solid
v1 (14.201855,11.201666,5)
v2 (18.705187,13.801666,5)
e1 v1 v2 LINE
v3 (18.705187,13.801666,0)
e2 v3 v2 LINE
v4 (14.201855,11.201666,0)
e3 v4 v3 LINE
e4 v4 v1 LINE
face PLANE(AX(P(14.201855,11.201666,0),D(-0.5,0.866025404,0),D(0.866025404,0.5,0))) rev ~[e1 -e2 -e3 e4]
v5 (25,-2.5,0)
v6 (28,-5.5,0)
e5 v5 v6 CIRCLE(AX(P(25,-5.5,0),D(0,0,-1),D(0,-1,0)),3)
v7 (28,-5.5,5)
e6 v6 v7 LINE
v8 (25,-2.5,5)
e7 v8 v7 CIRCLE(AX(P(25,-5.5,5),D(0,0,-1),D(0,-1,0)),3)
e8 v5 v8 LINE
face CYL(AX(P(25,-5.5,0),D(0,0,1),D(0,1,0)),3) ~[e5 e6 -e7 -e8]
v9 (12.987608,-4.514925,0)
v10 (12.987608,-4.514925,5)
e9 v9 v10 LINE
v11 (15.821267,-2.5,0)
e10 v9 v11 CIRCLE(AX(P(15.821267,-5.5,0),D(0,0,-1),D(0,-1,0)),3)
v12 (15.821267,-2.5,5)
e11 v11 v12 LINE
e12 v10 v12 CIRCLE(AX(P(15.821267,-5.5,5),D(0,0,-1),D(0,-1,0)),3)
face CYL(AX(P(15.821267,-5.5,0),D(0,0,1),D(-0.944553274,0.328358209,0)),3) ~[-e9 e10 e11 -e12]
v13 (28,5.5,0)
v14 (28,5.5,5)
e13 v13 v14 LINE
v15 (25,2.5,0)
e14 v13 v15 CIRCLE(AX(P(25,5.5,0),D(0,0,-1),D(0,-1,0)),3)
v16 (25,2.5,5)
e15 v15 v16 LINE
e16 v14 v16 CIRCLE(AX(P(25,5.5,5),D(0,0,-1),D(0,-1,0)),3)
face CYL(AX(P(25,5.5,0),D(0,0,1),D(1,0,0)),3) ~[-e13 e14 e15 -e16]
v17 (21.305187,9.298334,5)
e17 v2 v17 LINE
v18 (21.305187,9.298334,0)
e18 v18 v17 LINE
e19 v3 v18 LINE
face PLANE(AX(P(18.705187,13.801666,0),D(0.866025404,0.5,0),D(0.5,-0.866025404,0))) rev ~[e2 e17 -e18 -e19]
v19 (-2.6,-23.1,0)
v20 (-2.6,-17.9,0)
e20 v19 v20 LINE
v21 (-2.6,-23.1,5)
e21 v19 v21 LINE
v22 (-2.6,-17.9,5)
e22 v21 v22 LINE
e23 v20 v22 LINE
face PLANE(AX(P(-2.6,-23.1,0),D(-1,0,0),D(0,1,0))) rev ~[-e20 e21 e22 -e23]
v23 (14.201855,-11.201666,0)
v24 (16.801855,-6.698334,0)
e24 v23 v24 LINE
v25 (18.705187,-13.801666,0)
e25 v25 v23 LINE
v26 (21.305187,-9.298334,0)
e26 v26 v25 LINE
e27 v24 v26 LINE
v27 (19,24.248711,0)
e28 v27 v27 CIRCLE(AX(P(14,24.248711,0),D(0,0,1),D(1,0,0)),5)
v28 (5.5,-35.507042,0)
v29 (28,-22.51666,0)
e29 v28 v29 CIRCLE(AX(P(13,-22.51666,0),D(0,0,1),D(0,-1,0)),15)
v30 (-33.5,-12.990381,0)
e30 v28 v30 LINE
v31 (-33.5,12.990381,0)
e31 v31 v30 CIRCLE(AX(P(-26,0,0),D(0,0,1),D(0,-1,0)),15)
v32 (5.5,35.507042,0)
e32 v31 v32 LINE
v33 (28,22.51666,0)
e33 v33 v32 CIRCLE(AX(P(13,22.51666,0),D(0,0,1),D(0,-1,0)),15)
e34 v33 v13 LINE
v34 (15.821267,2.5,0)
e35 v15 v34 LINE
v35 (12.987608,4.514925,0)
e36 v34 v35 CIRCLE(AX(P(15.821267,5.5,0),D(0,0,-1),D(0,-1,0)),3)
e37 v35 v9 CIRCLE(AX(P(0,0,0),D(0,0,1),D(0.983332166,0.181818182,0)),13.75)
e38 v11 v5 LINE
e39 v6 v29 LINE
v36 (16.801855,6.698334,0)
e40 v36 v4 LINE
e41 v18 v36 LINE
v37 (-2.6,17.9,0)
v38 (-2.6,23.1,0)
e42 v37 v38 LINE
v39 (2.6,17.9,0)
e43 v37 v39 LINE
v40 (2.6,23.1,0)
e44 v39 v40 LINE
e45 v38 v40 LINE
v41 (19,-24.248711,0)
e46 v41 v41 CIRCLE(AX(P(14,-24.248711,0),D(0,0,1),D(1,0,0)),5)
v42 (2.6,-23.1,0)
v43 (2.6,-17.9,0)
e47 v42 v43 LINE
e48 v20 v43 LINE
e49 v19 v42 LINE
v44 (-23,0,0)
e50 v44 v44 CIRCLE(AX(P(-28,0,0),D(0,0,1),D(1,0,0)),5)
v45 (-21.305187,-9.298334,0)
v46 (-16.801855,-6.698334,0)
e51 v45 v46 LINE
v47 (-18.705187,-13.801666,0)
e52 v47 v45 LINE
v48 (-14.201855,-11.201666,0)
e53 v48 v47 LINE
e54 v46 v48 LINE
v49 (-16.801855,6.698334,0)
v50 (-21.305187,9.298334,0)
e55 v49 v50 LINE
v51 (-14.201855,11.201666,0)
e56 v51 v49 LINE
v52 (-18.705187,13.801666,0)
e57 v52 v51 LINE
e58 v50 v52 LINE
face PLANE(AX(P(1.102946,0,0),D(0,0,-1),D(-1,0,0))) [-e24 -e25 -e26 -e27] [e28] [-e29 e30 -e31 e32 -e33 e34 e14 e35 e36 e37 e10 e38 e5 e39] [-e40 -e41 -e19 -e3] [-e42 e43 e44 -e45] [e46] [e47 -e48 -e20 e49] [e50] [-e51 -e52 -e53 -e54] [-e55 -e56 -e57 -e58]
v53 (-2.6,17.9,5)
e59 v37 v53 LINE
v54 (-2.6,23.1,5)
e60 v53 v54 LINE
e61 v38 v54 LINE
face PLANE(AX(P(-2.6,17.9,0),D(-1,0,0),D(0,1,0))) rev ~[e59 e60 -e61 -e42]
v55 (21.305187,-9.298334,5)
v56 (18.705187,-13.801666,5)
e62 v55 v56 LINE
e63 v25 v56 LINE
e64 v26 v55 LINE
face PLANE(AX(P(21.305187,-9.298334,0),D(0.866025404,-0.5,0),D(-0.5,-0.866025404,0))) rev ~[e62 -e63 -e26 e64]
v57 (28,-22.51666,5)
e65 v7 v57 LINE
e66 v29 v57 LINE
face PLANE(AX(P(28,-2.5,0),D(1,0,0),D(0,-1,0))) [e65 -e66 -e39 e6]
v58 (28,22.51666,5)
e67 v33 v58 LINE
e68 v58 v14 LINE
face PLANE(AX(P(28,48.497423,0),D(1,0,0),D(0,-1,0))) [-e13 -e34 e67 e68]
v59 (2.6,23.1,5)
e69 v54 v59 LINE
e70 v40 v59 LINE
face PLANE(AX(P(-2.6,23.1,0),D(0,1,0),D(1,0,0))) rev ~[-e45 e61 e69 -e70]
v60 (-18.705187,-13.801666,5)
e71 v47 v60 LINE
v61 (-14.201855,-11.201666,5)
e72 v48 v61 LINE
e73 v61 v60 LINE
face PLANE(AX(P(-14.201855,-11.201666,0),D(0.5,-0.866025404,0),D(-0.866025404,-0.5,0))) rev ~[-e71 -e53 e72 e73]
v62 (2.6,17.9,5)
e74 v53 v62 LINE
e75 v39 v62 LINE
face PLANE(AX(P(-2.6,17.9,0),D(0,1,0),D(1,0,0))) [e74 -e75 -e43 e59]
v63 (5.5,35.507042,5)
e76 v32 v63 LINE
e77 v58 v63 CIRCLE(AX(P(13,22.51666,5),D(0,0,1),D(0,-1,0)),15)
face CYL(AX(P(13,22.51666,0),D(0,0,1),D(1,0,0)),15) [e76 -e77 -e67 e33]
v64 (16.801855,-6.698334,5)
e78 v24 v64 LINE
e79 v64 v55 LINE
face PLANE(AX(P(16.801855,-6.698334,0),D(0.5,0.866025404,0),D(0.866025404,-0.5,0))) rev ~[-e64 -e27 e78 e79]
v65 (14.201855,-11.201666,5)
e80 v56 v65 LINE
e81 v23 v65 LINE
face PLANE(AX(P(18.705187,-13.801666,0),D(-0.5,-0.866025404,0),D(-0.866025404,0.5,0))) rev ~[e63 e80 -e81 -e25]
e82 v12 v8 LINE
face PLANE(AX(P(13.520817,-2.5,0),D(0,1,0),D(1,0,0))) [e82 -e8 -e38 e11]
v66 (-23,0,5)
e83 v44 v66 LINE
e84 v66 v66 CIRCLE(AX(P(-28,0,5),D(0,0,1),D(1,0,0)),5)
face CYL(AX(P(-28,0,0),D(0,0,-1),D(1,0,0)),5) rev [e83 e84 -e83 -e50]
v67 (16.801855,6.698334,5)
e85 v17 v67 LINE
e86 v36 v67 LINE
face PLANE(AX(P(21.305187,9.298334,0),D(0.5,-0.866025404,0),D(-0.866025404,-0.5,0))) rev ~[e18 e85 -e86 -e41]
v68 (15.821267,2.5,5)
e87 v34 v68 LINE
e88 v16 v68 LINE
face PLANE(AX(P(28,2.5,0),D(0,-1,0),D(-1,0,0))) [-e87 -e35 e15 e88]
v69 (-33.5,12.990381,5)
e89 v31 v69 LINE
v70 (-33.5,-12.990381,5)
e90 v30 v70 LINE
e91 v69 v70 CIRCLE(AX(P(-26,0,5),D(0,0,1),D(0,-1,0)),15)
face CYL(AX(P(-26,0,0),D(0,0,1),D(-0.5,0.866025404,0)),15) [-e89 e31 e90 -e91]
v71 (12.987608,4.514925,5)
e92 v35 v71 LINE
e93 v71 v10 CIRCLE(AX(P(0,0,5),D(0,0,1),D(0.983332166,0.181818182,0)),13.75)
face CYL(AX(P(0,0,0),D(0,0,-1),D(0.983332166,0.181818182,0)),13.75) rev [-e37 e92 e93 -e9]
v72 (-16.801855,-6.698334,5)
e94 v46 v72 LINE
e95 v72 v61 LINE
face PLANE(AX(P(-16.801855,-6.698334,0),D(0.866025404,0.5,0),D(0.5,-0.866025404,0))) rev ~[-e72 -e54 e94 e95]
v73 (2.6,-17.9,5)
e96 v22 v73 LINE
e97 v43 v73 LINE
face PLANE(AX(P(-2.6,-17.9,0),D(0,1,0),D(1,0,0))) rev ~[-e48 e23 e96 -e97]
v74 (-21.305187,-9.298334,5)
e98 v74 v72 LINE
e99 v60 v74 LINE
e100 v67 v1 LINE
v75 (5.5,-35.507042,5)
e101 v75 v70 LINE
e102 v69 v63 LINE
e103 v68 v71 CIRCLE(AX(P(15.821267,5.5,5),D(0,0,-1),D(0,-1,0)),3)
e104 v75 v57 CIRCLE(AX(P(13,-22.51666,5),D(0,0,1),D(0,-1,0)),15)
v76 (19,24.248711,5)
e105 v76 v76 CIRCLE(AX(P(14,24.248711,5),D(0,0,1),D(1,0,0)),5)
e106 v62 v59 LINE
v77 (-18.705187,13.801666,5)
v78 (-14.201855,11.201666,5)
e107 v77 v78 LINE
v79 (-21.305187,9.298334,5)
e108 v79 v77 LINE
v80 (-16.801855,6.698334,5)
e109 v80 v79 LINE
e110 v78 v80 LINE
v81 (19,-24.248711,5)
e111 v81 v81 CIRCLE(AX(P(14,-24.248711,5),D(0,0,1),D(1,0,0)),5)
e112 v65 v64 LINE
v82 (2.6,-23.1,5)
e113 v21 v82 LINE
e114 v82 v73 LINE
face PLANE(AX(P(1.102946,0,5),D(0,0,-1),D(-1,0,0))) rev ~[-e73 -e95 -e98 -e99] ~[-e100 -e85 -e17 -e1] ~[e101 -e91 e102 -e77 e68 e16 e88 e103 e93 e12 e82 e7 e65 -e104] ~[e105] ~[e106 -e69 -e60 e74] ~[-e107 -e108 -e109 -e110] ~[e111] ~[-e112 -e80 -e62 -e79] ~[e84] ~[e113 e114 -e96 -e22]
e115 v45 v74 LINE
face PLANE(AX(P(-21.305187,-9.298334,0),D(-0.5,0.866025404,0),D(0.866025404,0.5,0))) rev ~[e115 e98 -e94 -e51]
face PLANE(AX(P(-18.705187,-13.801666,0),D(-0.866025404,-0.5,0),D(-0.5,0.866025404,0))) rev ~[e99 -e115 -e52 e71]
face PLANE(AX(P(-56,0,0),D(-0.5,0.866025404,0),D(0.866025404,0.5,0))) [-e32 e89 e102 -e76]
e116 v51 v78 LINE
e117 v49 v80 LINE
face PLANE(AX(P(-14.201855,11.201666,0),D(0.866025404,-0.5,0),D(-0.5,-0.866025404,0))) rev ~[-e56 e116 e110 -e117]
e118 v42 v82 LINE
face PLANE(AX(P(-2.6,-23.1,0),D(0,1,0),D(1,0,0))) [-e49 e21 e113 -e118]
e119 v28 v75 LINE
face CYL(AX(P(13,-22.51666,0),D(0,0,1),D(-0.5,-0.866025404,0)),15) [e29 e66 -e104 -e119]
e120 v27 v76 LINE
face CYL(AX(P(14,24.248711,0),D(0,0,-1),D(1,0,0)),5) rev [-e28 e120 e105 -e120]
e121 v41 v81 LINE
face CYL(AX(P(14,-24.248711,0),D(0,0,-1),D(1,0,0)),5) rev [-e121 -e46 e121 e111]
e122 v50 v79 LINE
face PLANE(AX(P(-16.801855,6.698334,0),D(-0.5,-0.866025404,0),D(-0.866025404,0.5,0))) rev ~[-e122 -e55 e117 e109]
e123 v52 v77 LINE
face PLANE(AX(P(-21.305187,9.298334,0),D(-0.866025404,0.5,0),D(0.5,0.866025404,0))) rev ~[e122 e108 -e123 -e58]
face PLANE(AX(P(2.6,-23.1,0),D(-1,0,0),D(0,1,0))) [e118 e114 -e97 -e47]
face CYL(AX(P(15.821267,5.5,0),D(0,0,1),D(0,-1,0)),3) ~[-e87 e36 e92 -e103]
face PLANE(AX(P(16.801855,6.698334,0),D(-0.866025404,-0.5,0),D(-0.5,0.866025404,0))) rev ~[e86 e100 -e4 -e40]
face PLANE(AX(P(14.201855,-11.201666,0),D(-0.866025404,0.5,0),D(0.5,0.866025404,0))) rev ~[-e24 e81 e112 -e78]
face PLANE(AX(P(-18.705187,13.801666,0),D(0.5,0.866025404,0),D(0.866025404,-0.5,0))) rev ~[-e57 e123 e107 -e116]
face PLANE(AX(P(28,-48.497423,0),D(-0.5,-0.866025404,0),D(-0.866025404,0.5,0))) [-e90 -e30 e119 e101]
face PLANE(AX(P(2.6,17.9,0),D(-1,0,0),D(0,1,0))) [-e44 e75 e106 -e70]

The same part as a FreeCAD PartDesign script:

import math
import FreeCAD as App
import Part
import Sketcher

V = App.Vector
Q = App.Units.Quantity


def edges_at(feature, points):
    """Names of the edges that pass closest to the given points."""
    edges = feature.Shape.Edges
    near = lambda p: min(range(len(edges)), key=lambda i: edges[i].distToShape(Part.Vertex(*p))[0])
    return sorted({f"Edge{near(p) + 1}" for p in points})


def add_polygon(sketch, points):
    """Adds a closed chain of lines whose ends are joined by coincident constraints."""
    first, n = sketch.GeometryCount, len(points)
    for a, b in zip(points, points[1:] + points[:1]):
        sketch.addGeometry(Part.LineSegment(App.Vector(*a, 0), App.Vector(*b, 0)), False)
    for i in range(n):
        sketch.addConstraint(Sketcher.Constraint("Coincident", first + i, 2, first + (i + 1) % n, 1))

doc = App.newDocument("Part")
body = doc.addObject("PartDesign::Body", "Body")

sketch1 = body.newObject("Sketcher::SketchObject", "Sketch")
sketch1.AttachmentSupport = (doc.getObject("XY_Plane"), [""])
sketch1.MapMode = "FlatFace"
sketch1.addGeometry(Part.LineSegment(V(14, 2, 0), V(28, 2, 0)), False)
sketch1.addGeometry(Part.LineSegment(V(28, 2, 0), V(28, 48, 0)), False)
sketch1.addGeometry(Part.LineSegment(V(28, 48, 0), V(-56, 0, 0)), False)
sketch1.addGeometry(Part.LineSegment(V(-56, 0, 0), V(28, -48, 0)), False)
sketch1.addGeometry(Part.LineSegment(V(28, -48, 0), V(28, -2, 0)), False)
sketch1.addGeometry(Part.LineSegment(V(28, -2, 0), V(14, -2, 0)), False)
sketch1.addGeometry(Part.ArcOfCircle(Part.Circle(V(0, 0, 0), V(0, 0, 1), 14), math.radians(10), math.radians(350)), False)
sketch1.addGeometry(Part.Circle(V(14, -24, 0), V(0, 0, 1), 5), False)
add_polygon(sketch1, [(-3, -23), (-3, -18), (3, -18), (3, -23)])
add_polygon(sketch1, [(19, -14), (14, -11), (17, -7), (21, -9)])
add_polygon(sketch1, [(-21, -9), (-17, -7), (-14, -11), (-19, -14)])
add_polygon(sketch1, [(21, 9), (17, 7), (14, 11), (19, 14)])
sketch1.addGeometry(Part.Circle(V(14, 24, 0), V(0, 0, 1), 5), False)
add_polygon(sketch1, [(-3, 18), (-3, 23), (3, 23), (3, 18)])
add_polygon(sketch1, [(-19, 14), (-14, 11), (-17, 7), (-21, 9)])
sketch1.addGeometry(Part.Circle(V(-28, 0, 0), V(0, 0, 1), 5), False)
sketch1.addConstraint(Sketcher.Constraint("Coincident", 0, 2, 1, 1))
sketch1.addConstraint(Sketcher.Constraint("Coincident", 1, 2, 2, 1))
sketch1.addConstraint(Sketcher.Constraint("Coincident", 2, 2, 3, 1))
sketch1.addConstraint(Sketcher.Constraint("Coincident", 3, 2, 4, 1))
sketch1.addConstraint(Sketcher.Constraint("Coincident", 4, 2, 5, 1))
sketch1.addConstraint(Sketcher.Constraint("Coincident", 5, 2, 6, 2))
sketch1.addConstraint(Sketcher.Constraint("Coincident", 6, 1, 0, 1))
sketch1.addConstraint(Sketcher.Constraint("Horizontal", 0))
sketch1.addConstraint(Sketcher.Constraint("Vertical", 1))
sketch1.addConstraint(Sketcher.Constraint("Vertical", 4))
sketch1.addConstraint(Sketcher.Constraint("Horizontal", 5))
sketch1.addConstraint(Sketcher.Constraint("Vertical", 8))
sketch1.addConstraint(Sketcher.Constraint("Horizontal", 9))
sketch1.addConstraint(Sketcher.Constraint("Vertical", 10))
sketch1.addConstraint(Sketcher.Constraint("Horizontal", 11))
sketch1.addConstraint(Sketcher.Constraint("Vertical", 25))
sketch1.addConstraint(Sketcher.Constraint("Horizontal", 26))
sketch1.addConstraint(Sketcher.Constraint("Vertical", 27))
sketch1.addConstraint(Sketcher.Constraint("Horizontal", 28))
sketch1.addConstraint(Sketcher.Constraint("Coincident", 6, 3, -1, 1))
sketch1.addConstraint(Sketcher.Constraint("Equal", 7, 24))
sketch1.addConstraint(Sketcher.Constraint("Equal", 24, 33))
sketch1.addConstraint(Sketcher.Constraint("Symmetric", 16, 2, 20, 2, -1, 1))
sketch1.addConstraint(Sketcher.Constraint("Symmetric", 17, 2, 21, 2, -1, 1))
sketch1.addConstraint(Sketcher.Constraint("Symmetric", 18, 2, 22, 2, -1, 1))
sketch1.addConstraint(Sketcher.Constraint("Symmetric", 19, 2, 23, 2, -1, 1))
sketch1.addConstraint(Sketcher.Constraint("Symmetric", 10, 2, 25, 2, -1, 1))
sketch1.addConstraint(Sketcher.Constraint("Symmetric", 8, 2, 27, 2, -1, 1))
sketch1.addConstraint(Sketcher.Constraint("Symmetric", 12, 2, 29, 2, -1, 1))
sketch1.addConstraint(Sketcher.Constraint("Symmetric", 13, 2, 30, 2, -1, 1))
sketch1.addConstraint(Sketcher.Constraint("Symmetric", 14, 2, 31, 2, -1, 1))
sketch1.addConstraint(Sketcher.Constraint("Symmetric", 15, 2, 32, 2, -1, 1))
sketch1.addConstraint(Sketcher.Constraint("Symmetric", 13, 2, 16, 2, -2))
sketch1.addConstraint(Sketcher.Constraint("Symmetric", 12, 2, 17, 2, -2))
sketch1.addConstraint(Sketcher.Constraint("Symmetric", 15, 2, 18, 2, -2))
sketch1.addConstraint(Sketcher.Constraint("Symmetric", 14, 2, 19, 2, -2))
sketch1.addConstraint(Sketcher.Constraint("Symmetric", 7, 3, 24, 3, -1))
sketch1.addConstraint(Sketcher.Constraint("Symmetric", 1, 2, 3, 2, -1))
sketch1.addConstraint(Sketcher.Constraint("PointOnObject", 33, 3, -1))
sketch1.addConstraint(Sketcher.Constraint("PointOnObject", 2, 2, -1))
sketch1.addConstraint(Sketcher.Constraint("Parallel", 3, 12))
sketch1.addConstraint(Sketcher.Constraint("Perpendicular", 12, 13))
sketch1.addConstraint(Sketcher.Constraint("Perpendicular", 13, 14))
sketch1.addConstraint(Sketcher.Constraint("Perpendicular", 14, 15))
sketch1.addConstraint(Sketcher.Constraint("Vertical", 5, 2, 6, 1))
sketch1.addConstraint(Sketcher.Constraint("Vertical", 11, 2, 25, 2))
sketch1.addConstraint(Sketcher.Constraint("Equal", 28, 8))
sketch1.addConstraint(Sketcher.Constraint("Equal", 12, 13))
sketch1.addConstraint(Sketcher.Constraint("Diameter", 7, Q("10 mm")))
sketch1.addConstraint(Sketcher.Constraint("Angle", 2, Q("-150 deg")))
sketch1.addConstraint(Sketcher.Constraint("Radius", 6, Q("13.75 mm")))
sketch1.addConstraint(Sketcher.Constraint("DistanceX", 9, 1, 9, 2, Q("5.2 mm")))
sketch1.addConstraint(Sketcher.Constraint("DistanceX", -1, 1, 7, 3, Q("14 mm")))
sketch1.addConstraint(Sketcher.Constraint("DistanceX", 33, 3, -1, 1, Q("28 mm")))
sketch1.addConstraint(Sketcher.Constraint("DistanceX", -1, 1, 0, 2, Q("28 mm")))
sketch1.addConstraint(Sketcher.Constraint("DistanceX", 2, 2, -1, 1, Q("56 mm")))
sketch1.addConstraint(Sketcher.Constraint("DistanceY", 4, 2, 0, 2, Q("5 mm")))
sketch1.addConstraint(Sketcher.Constraint("Distance", 12, Q("5.2 mm")))
sketch1.addConstraint(Sketcher.Constraint("DistanceY", 8, 2, -1, 1, Q("17.9 mm")))
sketch1.addConstraint(Sketcher.Constraint("DistanceY", 16, 2, 29, 2, Q("17.9 mm")))
sketch1.addConstraint(Sketcher.Constraint("DistanceY", 7, 3, -1, 1, Q("24.248711 mm")))
sketch1.addConstraint(Sketcher.Constraint("DistanceX", 5, 2, 14, 2, Q("7.78437 mm")))
pad1 = body.newObject("PartDesign::Pad", "Pad")
pad1.Profile = sketch1
pad1.Length = 5
doc.recompute()

fillet = body.newObject("PartDesign::Fillet", "Fillet")
fillet.Base = (pad1, edges_at(pad1, [(28, -48.497, 2.5), (-56, 0, 2.5), (28, 48.497, 2.5)]))
fillet.Radius = 15
doc.recompute()

fillet2 = body.newObject("PartDesign::Fillet", "Fillet001")
fillet2.Base = (fillet, edges_at(fillet, [
    (28, 2.5, 2.5),
    (13.521, 2.5, 2.5),
    (13.521, -2.5, 2.5),
    (28, -2.5, 2.5),
]))
fillet2.Radius = 3

doc.recompute()
